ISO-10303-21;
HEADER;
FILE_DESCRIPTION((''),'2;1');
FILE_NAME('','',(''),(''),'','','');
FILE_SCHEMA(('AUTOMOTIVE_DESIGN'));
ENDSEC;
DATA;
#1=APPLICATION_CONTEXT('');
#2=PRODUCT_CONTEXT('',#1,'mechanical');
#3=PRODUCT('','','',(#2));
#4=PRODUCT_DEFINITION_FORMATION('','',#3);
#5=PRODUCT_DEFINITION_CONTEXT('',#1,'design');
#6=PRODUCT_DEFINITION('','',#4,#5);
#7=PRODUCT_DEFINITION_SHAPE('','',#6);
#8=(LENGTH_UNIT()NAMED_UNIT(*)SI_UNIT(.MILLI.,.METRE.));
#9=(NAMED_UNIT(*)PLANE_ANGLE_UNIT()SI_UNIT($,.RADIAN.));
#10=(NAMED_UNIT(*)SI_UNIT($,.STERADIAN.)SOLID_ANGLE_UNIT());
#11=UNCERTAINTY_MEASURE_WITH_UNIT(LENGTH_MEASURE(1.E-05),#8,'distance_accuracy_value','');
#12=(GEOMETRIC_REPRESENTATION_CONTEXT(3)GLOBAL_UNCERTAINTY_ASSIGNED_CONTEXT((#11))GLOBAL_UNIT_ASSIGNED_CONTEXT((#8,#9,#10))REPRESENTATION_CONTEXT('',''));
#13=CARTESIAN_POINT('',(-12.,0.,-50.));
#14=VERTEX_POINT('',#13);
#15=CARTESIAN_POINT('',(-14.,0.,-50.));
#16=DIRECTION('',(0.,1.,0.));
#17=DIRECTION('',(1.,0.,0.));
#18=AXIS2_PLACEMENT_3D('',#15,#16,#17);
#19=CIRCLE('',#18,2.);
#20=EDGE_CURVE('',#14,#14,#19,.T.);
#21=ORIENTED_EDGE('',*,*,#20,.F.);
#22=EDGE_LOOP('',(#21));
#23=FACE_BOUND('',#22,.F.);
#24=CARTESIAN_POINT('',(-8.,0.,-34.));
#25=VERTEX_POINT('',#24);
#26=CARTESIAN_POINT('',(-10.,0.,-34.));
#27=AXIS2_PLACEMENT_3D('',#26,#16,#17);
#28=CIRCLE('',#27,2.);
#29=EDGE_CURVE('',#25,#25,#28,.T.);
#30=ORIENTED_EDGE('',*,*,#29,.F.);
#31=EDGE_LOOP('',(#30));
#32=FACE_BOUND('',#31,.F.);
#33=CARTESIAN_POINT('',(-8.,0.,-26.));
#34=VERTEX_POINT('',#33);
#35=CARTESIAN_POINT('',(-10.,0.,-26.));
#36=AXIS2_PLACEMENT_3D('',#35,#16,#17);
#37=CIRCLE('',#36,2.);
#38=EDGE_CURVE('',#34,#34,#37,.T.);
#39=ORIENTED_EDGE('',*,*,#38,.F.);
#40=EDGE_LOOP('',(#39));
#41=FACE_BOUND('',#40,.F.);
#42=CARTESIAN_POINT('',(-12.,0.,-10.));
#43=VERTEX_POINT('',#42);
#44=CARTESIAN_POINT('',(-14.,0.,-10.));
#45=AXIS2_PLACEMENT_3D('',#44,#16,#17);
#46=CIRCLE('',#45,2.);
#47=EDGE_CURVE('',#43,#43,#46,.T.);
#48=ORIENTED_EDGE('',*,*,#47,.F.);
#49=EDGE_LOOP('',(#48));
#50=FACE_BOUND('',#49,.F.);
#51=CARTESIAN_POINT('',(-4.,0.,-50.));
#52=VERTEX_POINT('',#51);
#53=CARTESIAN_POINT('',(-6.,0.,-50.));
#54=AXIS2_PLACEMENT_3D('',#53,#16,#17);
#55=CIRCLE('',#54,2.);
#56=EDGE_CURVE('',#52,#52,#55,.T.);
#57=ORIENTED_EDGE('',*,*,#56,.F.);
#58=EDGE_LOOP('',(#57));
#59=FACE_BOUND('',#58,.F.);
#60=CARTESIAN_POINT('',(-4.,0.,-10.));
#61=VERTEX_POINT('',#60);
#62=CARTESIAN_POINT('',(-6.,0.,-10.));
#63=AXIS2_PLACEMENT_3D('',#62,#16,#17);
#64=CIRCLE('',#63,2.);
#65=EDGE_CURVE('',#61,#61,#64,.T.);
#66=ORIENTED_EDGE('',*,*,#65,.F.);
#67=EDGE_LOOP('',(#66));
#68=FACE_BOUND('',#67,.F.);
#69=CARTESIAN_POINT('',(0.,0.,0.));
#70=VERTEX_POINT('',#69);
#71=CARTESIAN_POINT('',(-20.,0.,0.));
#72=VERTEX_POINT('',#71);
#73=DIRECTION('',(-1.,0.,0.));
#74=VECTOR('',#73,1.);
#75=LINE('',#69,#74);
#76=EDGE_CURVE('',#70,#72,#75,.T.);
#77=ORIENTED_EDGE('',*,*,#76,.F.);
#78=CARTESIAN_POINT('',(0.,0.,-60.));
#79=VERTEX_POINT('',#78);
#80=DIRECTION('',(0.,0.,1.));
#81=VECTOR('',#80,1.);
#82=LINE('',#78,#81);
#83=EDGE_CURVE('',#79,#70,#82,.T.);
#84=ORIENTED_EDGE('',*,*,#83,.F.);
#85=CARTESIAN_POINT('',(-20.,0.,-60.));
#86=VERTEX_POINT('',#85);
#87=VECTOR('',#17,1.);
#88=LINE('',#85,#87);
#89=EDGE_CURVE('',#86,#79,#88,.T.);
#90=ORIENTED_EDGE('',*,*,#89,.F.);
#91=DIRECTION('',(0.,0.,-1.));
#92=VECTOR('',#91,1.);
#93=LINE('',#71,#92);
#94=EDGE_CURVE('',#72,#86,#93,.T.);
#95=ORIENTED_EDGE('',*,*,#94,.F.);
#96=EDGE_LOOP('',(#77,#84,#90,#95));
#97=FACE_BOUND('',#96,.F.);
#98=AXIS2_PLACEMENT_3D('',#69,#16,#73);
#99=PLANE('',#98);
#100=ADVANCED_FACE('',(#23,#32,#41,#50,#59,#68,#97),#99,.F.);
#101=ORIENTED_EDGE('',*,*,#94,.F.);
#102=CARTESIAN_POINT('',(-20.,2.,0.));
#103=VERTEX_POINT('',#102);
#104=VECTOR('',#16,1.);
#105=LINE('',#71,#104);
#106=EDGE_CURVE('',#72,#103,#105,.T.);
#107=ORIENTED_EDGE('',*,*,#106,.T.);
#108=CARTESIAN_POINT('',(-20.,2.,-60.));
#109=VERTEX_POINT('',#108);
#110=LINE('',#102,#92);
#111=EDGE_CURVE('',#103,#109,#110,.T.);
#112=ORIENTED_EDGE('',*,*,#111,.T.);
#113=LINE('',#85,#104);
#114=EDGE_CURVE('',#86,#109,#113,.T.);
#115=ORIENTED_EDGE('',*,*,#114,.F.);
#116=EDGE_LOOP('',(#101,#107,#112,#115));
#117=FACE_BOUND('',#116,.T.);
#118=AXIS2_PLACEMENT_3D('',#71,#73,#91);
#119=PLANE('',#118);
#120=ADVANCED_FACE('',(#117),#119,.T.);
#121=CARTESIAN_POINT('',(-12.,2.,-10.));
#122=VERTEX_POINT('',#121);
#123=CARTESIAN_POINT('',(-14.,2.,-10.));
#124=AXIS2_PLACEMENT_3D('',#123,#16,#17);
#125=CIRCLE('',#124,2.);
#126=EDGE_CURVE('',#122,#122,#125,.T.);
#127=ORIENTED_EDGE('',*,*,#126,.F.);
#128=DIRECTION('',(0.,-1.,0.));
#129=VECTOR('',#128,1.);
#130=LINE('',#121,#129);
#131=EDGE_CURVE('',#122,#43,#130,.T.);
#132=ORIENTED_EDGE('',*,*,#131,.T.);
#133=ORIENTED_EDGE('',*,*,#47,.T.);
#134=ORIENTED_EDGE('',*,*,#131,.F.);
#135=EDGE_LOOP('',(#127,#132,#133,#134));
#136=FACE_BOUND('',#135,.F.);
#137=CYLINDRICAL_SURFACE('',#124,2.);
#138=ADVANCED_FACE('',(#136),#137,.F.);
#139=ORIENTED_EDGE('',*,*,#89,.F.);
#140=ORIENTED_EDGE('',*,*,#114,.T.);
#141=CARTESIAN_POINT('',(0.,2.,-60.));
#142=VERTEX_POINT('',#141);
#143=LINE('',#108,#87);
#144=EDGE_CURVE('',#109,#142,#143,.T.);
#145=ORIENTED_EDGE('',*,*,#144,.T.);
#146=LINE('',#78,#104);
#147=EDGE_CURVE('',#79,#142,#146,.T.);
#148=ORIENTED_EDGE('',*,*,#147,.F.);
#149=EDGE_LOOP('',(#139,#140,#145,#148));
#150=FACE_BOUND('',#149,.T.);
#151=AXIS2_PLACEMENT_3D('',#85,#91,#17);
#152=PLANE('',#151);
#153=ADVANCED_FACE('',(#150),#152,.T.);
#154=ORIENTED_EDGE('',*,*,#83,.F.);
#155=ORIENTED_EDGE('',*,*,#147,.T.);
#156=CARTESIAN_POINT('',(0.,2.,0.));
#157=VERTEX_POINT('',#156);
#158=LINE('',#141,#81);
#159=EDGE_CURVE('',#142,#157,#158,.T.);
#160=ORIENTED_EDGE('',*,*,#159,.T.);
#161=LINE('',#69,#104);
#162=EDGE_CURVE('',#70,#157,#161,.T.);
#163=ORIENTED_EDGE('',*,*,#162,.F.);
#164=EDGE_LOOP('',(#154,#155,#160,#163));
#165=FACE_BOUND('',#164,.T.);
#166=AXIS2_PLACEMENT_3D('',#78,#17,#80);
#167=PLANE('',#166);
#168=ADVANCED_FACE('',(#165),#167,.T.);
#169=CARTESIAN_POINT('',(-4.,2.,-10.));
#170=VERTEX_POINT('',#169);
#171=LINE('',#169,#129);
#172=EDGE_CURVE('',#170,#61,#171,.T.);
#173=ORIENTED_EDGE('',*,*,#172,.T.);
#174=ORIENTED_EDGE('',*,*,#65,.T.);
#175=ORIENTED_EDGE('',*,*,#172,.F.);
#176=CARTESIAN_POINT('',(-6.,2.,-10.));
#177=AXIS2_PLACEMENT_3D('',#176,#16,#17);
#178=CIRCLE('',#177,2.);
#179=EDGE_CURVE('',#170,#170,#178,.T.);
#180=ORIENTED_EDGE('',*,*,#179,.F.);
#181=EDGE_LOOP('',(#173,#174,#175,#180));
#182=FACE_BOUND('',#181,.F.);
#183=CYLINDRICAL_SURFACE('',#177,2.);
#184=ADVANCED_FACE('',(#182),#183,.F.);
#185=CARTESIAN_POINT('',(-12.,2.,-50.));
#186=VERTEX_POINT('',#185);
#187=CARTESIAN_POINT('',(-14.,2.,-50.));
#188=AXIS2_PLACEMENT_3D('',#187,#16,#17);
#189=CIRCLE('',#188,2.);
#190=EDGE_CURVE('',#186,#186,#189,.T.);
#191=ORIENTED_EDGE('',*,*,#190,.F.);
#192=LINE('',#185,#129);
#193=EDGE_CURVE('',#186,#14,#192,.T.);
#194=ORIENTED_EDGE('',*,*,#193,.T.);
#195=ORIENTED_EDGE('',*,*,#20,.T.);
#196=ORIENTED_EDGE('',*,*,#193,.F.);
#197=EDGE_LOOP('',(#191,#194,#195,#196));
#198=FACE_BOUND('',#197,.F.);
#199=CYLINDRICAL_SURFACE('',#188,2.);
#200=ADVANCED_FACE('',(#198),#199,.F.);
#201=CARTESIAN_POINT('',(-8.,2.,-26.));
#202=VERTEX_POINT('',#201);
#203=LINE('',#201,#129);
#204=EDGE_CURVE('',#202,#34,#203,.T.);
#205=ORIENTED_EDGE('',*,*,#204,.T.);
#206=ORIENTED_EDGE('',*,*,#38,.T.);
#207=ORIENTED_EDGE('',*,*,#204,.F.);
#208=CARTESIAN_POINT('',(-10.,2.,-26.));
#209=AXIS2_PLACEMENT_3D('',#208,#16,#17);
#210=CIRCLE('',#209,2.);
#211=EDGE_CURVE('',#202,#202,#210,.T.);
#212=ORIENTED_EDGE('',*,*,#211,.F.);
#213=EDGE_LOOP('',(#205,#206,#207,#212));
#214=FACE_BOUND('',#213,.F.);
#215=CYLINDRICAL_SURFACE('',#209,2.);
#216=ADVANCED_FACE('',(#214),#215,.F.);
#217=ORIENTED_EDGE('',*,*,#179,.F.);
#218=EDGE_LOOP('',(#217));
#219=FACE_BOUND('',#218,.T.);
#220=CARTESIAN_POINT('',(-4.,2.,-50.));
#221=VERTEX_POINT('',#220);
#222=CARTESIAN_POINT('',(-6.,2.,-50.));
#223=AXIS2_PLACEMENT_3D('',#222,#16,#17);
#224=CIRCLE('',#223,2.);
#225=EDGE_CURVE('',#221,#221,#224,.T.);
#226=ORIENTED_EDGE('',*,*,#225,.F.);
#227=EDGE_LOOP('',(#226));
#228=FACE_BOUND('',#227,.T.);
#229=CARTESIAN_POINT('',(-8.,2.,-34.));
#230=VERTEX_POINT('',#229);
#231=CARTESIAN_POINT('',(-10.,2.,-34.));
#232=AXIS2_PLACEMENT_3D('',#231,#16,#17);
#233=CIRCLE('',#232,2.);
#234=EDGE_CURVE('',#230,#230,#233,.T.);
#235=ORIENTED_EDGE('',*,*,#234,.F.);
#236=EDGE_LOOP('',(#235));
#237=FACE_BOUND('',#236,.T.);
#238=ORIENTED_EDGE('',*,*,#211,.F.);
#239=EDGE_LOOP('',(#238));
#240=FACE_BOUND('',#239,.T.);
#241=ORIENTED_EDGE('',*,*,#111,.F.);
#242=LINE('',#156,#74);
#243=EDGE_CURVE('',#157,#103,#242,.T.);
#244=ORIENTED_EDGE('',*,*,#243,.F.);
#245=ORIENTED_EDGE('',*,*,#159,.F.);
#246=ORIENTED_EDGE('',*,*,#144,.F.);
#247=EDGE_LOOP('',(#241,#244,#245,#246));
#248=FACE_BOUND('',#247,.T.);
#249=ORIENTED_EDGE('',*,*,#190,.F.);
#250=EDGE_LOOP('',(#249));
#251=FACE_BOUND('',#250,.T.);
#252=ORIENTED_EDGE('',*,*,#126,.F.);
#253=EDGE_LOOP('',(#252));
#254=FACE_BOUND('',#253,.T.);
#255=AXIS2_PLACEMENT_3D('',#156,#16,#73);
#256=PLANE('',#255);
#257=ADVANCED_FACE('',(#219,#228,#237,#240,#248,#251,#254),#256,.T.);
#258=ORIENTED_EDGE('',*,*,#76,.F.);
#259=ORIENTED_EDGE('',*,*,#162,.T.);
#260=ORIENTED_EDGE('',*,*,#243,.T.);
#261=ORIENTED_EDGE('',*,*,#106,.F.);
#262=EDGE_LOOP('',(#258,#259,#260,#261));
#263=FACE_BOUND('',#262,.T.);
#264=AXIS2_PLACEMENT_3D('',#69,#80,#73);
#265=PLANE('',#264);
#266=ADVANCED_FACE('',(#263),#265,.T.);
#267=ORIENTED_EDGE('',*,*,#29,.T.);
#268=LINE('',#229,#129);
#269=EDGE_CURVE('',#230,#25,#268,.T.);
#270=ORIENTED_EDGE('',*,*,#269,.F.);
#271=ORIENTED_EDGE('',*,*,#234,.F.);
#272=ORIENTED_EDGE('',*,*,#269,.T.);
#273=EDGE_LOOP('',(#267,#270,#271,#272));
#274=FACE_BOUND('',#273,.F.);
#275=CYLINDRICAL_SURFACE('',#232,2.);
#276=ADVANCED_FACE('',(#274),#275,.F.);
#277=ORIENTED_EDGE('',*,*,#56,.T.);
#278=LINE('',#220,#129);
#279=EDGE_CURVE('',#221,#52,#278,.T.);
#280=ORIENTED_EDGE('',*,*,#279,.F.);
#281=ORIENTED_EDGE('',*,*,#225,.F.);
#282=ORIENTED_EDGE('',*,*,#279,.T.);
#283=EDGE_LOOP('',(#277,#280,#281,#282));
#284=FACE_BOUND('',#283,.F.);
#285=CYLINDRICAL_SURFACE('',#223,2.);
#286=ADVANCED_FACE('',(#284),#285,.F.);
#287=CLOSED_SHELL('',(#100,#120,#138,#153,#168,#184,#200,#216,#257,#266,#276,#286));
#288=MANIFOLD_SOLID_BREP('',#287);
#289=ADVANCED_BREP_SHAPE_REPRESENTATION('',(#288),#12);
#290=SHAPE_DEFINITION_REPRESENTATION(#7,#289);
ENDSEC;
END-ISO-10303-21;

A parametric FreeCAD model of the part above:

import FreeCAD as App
import Part
import Sketcher
from FreeCAD import Vector

doc = App.newDocument("Part")
params = doc.addObject("Spreadsheet::Sheet", "Params")
for row, (alias, value) in enumerate([
    ("sketch1_width", "20 mm"),
    ("sketch1_height", "60 mm"),
    ("pad1_length", "2 mm"),
    ("sketch2_diameter", "4 mm"),
], start=1):
    params.set(f"A{row}", alias)
    params.set(f"B{row}", "=" + value)
    params.setAlias(f"B{row}", alias)

body = doc.addObject("PartDesign::Body", "Body")

# Sketch on XZ plane
sketch1 = body.newObject("Sketcher::SketchObject", "Sketch")
sketch1.AttachmentSupport = (doc.getObject("XZ_Plane"), [""])
sketch1.MapMode = "FlatFace"
sketch1.addGeometry(Part.LineSegment(Vector(-20, 0, 0), Vector(0, 0, 0)), False)
sketch1.addGeometry(Part.LineSegment(Vector(0, 0, 0), Vector(0, -60, 0)), False)
sketch1.addGeometry(Part.LineSegment(Vector(0, -60, 0), Vector(-20, -60, 0)), False)
sketch1.addGeometry(Part.LineSegment(Vector(-20, -60, 0), Vector(-20, 0, 0)), False)
sketch1.addConstraint(Sketcher.Constraint("Coincident", 0, 2, 1, 1))
sketch1.addConstraint(Sketcher.Constraint("Coincident", 1, 2, 2, 1))
sketch1.addConstraint(Sketcher.Constraint("Coincident", 2, 2, 3, 1))
sketch1.addConstraint(Sketcher.Constraint("Coincident", 3, 2, 0, 1))
sketch1.addConstraint(Sketcher.Constraint("Horizontal", 0))
sketch1.addConstraint(Sketcher.Constraint("Vertical", 1))
sketch1.addConstraint(Sketcher.Constraint("Horizontal", 2))
sketch1.addConstraint(Sketcher.Constraint("Vertical", 3))
sketch1.addConstraint(Sketcher.Constraint("Coincident", 0, 2, -1, 1))
sketch1.addConstraint(Sketcher.Constraint("DistanceX", 0, 1, 0, 2, 20.0))
sketch1.addConstraint(Sketcher.Constraint("DistanceY", 1, 2, 1, 1, 60.0))
sketch1.setExpression("Constraints[9]", "Params.sketch1_width")
sketch1.setExpression("Constraints[10]", "Params.sketch1_height")
pad1 = body.newObject("PartDesign::Pad", "Pad")
pad1.Profile = sketch1
pad1.setExpression("Length", "Params.pad1_length")
pad1.Reversed = True

# Sketch on XZ plane
sketch2 = body.newObject("Sketcher::SketchObject", "Sketch001")
sketch2.AttachmentSupport = (doc.getObject("XZ_Plane"), [""])
sketch2.MapMode = "FlatFace"
sketch2.AttachmentOffset = App.Placement(Vector(0, 0, -2), App.Rotation())
sketch2.addGeometry(Part.Circle(Vector(-14, -10, 0), Vector(0, 0, 1), 2), False)
sketch2.addGeometry(Part.Circle(Vector(-6, -10, 0), Vector(0, 0, 1), 2), False)
sketch2.addGeometry(Part.Circle(Vector(-10, -26, 0), Vector(0, 0, 1), 2), False)
sketch2.addGeometry(Part.Circle(Vector(-10, -34, 0), Vector(0, 0, 1), 2), False)
sketch2.addGeometry(Part.Circle(Vector(-6, -50, 0), Vector(0, 0, 1), 2), False)
sketch2.addGeometry(Part.Circle(Vector(-14, -50, 0), Vector(0, 0, 1), 2), False)
sketch2.addConstraint(Sketcher.Constraint("Equal", 0, 1))
sketch2.addConstraint(Sketcher.Constraint("Equal", 1, 2))
sketch2.addConstraint(Sketcher.Constraint("Equal", 2, 3))
sketch2.addConstraint(Sketcher.Constraint("Equal", 3, 4))
sketch2.addConstraint(Sketcher.Constraint("Equal", 4, 5))
sketch2.addConstraint(Sketcher.Constraint("Horizontal", 0, 3, 1, 3))
sketch2.addConstraint(Sketcher.Constraint("Horizontal", 4, 3, 5, 3))
sketch2.addConstraint(Sketcher.Constraint("Vertical", 2, 3, 3, 3))
sketch2.addConstraint(Sketcher.Constraint("Vertical", 1, 3, 4, 3))
sketch2.addConstraint(Sketcher.Constraint("Vertical", 0, 3, 5, 3))
sketch2.addConstraint(Sketcher.Constraint("Diameter", 0, 4.0))
sketch2.addConstraint(Sketcher.Constraint("DistanceX", 0, 3, -1, 1, 14.0))
sketch2.addConstraint(Sketcher.Constraint("DistanceY", 0, 3, -1, 1, 10.0))
sketch2.addConstraint(Sketcher.Constraint("DistanceX", 1, 3, -1, 1, 6.0))
sketch2.addConstraint(Sketcher.Constraint("DistanceX", 2, 3, -1, 1, 10.0))
sketch2.addConstraint(Sketcher.Constraint("DistanceY", 2, 3, -1, 1, 26.0))
sketch2.addConstraint(Sketcher.Constraint("DistanceY", 3, 3, -1, 1, 34.0))
sketch2.addConstraint(Sketcher.Constraint("DistanceY", 4, 3, -1, 1, 50.0))
sketch2.setExpression("Constraints[10]", "Params.sketch2_diameter")
pocket1 = body.newObject("PartDesign::Pocket", "Pocket")
pocket1.Profile = sketch2
pocket1.Type = "ThroughAll"
pocket1.Reversed = True

doc.recompute()
